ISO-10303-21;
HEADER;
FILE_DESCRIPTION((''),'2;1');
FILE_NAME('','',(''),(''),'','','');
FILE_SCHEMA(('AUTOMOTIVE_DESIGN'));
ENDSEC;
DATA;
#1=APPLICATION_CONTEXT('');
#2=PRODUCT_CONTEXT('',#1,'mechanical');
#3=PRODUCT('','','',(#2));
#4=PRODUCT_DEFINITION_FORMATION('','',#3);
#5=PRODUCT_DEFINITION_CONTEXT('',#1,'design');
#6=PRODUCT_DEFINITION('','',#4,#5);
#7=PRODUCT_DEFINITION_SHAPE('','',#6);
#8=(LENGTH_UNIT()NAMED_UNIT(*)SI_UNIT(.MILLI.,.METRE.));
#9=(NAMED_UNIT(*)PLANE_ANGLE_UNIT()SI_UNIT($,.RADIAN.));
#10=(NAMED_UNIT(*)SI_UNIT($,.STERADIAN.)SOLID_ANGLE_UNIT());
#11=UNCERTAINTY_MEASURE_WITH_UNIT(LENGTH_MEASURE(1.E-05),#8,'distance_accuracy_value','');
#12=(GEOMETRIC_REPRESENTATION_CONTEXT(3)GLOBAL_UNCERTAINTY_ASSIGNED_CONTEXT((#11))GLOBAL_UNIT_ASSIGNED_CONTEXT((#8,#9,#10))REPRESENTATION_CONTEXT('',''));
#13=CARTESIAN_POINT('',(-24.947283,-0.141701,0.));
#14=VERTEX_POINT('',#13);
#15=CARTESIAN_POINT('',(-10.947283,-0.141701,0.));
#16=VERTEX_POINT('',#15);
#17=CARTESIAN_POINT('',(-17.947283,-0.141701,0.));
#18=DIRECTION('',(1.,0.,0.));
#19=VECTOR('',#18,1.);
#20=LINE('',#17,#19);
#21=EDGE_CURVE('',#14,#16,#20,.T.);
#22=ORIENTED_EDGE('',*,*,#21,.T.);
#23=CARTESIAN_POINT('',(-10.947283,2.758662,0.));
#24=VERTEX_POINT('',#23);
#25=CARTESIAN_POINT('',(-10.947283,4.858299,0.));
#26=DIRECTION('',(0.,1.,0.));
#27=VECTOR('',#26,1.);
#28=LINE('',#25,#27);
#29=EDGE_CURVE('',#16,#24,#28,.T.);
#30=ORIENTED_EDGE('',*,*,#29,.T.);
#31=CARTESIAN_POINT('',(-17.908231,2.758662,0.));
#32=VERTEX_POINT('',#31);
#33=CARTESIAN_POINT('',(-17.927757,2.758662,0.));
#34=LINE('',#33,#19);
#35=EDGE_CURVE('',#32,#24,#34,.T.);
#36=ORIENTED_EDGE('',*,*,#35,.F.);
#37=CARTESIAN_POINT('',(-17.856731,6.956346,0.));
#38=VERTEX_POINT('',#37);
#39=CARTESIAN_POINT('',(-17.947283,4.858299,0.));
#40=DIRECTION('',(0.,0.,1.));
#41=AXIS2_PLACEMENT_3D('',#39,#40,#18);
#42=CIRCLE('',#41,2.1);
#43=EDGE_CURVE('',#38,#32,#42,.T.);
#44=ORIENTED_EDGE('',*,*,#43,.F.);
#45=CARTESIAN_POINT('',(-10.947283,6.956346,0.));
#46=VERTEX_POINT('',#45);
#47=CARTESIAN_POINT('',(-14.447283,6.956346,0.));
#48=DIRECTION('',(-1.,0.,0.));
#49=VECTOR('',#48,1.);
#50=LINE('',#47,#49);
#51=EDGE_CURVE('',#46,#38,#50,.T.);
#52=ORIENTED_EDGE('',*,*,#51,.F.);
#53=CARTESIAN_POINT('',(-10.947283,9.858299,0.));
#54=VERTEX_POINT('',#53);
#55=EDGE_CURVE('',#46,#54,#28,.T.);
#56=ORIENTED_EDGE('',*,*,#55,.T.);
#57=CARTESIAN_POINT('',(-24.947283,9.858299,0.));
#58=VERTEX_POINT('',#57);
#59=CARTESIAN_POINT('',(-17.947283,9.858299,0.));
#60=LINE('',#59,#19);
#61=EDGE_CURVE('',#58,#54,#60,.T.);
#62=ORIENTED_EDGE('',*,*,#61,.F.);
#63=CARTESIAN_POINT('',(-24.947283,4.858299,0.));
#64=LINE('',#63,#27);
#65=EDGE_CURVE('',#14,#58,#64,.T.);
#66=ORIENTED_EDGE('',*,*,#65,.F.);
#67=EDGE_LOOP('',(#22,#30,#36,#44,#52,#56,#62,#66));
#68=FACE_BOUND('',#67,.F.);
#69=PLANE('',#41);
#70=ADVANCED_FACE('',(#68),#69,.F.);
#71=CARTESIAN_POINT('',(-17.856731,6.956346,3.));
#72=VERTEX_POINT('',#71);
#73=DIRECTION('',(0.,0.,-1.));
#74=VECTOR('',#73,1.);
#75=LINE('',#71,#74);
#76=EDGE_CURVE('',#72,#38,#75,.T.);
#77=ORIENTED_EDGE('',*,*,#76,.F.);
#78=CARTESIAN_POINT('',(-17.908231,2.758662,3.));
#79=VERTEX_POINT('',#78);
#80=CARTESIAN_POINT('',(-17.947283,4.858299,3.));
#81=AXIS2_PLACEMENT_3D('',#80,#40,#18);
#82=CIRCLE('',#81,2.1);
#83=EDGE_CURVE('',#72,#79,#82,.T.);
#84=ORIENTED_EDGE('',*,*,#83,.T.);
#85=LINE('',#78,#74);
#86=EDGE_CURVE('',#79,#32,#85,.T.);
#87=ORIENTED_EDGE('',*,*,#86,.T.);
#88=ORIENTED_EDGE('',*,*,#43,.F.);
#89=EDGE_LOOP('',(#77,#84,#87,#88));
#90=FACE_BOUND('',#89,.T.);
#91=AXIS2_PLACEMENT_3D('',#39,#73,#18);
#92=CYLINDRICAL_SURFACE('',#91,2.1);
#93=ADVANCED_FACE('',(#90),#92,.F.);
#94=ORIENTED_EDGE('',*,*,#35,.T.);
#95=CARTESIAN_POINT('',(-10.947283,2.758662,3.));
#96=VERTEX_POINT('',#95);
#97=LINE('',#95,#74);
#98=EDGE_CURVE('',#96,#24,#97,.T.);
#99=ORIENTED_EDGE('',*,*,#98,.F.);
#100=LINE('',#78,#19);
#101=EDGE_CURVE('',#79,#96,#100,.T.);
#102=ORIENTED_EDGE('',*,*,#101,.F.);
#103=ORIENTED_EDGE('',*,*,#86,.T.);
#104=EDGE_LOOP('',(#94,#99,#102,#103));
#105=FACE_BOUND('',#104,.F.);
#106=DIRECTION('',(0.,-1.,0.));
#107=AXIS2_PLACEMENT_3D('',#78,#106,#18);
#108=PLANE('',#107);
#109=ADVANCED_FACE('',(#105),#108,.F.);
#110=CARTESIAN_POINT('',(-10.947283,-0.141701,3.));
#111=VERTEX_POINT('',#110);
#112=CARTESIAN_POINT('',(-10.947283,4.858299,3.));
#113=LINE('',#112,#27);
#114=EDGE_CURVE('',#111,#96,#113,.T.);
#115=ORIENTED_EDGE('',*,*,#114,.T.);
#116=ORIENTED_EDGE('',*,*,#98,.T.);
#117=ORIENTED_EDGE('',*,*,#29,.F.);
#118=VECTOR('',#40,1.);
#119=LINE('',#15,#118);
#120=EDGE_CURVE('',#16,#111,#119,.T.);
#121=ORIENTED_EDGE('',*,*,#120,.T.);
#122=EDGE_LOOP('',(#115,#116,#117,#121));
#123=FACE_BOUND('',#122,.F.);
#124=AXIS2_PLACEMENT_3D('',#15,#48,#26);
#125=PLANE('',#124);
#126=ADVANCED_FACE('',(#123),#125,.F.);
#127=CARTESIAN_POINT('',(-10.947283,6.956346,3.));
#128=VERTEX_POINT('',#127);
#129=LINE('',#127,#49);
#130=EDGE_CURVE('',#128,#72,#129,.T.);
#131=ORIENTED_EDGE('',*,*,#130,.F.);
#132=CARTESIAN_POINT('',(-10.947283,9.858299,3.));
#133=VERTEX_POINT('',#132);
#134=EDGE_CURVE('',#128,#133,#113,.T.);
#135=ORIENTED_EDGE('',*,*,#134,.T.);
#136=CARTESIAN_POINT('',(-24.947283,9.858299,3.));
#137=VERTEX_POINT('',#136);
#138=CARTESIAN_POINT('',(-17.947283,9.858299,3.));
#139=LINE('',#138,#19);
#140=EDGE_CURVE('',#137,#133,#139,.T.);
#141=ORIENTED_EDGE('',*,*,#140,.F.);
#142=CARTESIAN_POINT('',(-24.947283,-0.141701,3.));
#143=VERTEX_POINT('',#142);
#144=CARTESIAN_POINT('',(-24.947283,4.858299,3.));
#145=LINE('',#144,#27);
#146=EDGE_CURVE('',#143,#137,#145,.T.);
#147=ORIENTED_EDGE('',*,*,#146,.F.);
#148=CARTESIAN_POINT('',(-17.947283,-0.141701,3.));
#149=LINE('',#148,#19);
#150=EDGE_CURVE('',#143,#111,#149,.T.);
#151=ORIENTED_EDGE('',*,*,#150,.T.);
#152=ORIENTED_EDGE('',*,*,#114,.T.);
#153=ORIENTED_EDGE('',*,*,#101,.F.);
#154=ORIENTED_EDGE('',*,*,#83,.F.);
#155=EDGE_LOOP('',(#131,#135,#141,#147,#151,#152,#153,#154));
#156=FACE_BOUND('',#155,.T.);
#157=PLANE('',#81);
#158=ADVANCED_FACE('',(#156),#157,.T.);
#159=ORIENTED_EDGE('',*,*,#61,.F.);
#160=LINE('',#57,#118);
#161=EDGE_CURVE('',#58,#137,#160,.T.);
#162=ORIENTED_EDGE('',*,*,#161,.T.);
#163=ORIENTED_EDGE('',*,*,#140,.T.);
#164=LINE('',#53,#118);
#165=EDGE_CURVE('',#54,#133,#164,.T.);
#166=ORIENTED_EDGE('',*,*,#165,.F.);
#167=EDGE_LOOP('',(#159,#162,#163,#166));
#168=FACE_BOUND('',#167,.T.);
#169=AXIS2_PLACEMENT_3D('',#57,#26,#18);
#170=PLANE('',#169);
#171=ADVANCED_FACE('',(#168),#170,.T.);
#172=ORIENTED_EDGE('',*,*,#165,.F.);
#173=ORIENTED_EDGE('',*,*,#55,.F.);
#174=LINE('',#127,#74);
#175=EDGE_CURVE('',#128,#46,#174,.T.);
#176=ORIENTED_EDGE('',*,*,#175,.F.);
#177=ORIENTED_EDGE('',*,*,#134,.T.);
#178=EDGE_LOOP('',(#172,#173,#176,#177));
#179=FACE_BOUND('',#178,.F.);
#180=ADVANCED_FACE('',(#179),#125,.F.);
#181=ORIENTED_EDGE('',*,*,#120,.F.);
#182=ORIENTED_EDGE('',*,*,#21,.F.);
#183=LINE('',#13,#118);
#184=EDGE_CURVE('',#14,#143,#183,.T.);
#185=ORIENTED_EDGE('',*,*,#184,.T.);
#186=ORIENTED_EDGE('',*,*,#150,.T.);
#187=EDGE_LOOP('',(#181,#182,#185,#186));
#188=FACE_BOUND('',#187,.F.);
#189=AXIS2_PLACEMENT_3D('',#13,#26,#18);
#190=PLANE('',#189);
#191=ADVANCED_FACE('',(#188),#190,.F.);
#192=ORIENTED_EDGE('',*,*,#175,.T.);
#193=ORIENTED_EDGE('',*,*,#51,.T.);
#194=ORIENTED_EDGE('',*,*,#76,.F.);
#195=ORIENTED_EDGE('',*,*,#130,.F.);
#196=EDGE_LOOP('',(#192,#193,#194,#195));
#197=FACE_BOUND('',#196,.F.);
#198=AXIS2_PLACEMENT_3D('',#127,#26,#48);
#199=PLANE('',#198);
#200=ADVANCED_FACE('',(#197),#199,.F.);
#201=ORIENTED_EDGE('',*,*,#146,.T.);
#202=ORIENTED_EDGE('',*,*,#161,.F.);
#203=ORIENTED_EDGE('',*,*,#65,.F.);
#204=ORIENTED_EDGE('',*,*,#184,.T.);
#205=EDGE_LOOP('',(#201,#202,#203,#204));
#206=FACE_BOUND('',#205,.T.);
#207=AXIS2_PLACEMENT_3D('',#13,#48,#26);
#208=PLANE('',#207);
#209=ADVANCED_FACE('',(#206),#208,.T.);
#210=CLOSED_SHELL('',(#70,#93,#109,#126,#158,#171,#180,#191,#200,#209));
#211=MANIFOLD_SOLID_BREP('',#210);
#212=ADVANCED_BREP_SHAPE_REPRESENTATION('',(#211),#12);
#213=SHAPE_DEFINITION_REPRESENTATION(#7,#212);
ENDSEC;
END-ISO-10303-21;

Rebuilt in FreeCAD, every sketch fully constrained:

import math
import FreeCAD as App
import Part
import Sketcher

V = App.Vector


def add_polygon(sketch, points):
    """Adds a closed chain of lines whose ends are joined by coincident constraints."""
    first, n = sketch.GeometryCount, len(points)
    for a, b in zip(points, points[1:] + points[:1]):
        sketch.addGeometry(Part.LineSegment(App.Vector(*a, 0), App.Vector(*b, 0)), False)
    for i in range(n):
        sketch.addConstraint(Sketcher.Constraint("Coincident", first + i, 2, first + (i + 1) % n, 1))

doc = App.newDocument("Part")
body = doc.addObject("PartDesign::Body", "Body")

sketch1 = body.newObject("Sketcher::SketchObject", "Sketch")
sketch1.AttachmentSupport = (doc.getObject("XY_Plane"), [""])
sketch1.MapMode = "FlatFace"
add_polygon(sketch1, [(-24.947283, 9.858299), (-24.947283, -0.141701), (-10.947283, -0.141701), (-10.947283, 9.858299)])
sketch1.addGeometry(Part.Circle(V(-17.947283, 4.858299, 0), V(0, 0, 1), 2.1), False)
sketch1.addConstraint(Sketcher.Constraint("Vertical", 0))
sketch1.addConstraint(Sketcher.Constraint("Horizontal", 1))
sketch1.addConstraint(Sketcher.Constraint("Vertical", 2))
sketch1.addConstraint(Sketcher.Constraint("Horizontal", 3))
sketch1.addConstraint(Sketcher.Constraint("Diameter", 4, 4.2))
sketch1.addConstraint(Sketcher.Constraint("DistanceX", 1, 1, 1, 2, 14.0))
sketch1.addConstraint(Sketcher.Constraint("DistanceY", 0, 2, 0, 1, 10.0))
sketch1.addConstraint(Sketcher.Constraint("DistanceX", 0, 2, 4, 3, 7.0))
sketch1.addConstraint(Sketcher.Constraint("DistanceY", 0, 2, 4, 3, 5.0))
sketch1.addConstraint(Sketcher.Constraint("DistanceY", -1, 1, 4, 3, 4.858299))
sketch1.addConstraint(Sketcher.Constraint("DistanceX", 4, 3, -1, 1, 17.947283))
pad1 = body.newObject("PartDesign::Pad", "Pad")
pad1.Profile = sketch1
pad1.Length = 3

sketch2 = body.newObject("Sketcher::SketchObject", "Sketch001")
sketch2.AttachmentSupport = (doc.getObject("XY_Plane"), [""])
sketch2.MapMode = "FlatFace"
sketch2.AttachmentOffset = App.Placement(V(0, 0, 3), App.Rotation())
sketch2.addGeometry(Part.LineSegment(V(-10.947283, 6.956346, 0), V(-17.856731, 6.956346, 0)), False)
sketch2.addGeometry(Part.ArcOfCircle(Part.Circle(V(-17.947283, 4.858299, 0), V(0, 0, 1), 2.1), math.radians(-0.000003), math.radians(87.528637)), False)
sketch2.addGeometry(Part.ArcOfCircle(Part.Circle(V(-17.947283, 4.858299, 0), V(0, 0, 1), 2.1), math.radians(-88.934445), math.radians(-0.000007)), False)
sketch2.addGeometry(Part.LineSegment(V(-17.908231, 2.758662, 0), V(-10.947283, 2.758662, 0)), False)
sketch2.addGeometry(Part.LineSegment(V(-10.947283, 2.758662, 0), V(-10.947283, 6.956346, 0)), False)
sketch2.addConstraint(Sketcher.Constraint("Coincident", 0, 2, 1, 2))
sketch2.addConstraint(Sketcher.Constraint("Tangent", 1, 1, 2, 2))
sketch2.addConstraint(Sketcher.Constraint("Coincident", 2, 1, 3, 1))
sketch2.addConstraint(Sketcher.Constraint("Coincident", 3, 2, 4, 1))
sketch2.addConstraint(Sketcher.Constraint("Coincident", 4, 2, 0, 1))
sketch2.addConstraint(Sketcher.Constraint("Horizontal", 0))
sketch2.addConstraint(Sketcher.Constraint("Horizontal", 3))
sketch2.addConstraint(Sketcher.Constraint("Vertical", 4))
sketch2.addConstraint(Sketcher.Constraint("Equal", 1, 2))
sketch2.addConstraint(Sketcher.Constraint("Horizontal", 2, 3, 1, 1))
sketch2.addConstraint(Sketcher.Constraint("Radius", 1, 2.1))
sketch2.addConstraint(Sketcher.Constraint("DistanceX", 1, 3, 3, 2, 7.0))
sketch2.addConstraint(Sketcher.Constraint("DistanceY", -1, 1, 1, 3, 4.858299))
sketch2.addConstraint(Sketcher.Constraint("DistanceX", 2, 1, 0, 2, 0.0515))
sketch2.addConstraint(Sketcher.Constraint("DistanceX", 0, 2, 0, 1, 6.909448))
sketch2.addConstraint(Sketcher.Constraint("DistanceX", 0, 2, -1, 1, 17.856731))
pocket1 = body.newObject("PartDesign::Pocket", "Pocket")
pocket1.Profile = sketch2
pocket1.Length = 25

doc.recompute()
